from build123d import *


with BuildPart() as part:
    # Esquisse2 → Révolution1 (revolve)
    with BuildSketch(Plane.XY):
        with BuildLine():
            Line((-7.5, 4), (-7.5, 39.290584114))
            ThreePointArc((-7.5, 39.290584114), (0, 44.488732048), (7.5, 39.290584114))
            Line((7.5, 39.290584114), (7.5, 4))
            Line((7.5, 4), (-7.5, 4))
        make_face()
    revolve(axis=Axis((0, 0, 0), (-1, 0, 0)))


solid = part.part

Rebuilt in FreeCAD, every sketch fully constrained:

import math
import FreeCAD as App
import Part
import Sketcher

V = App.Vector

doc = App.newDocument("Part")
body = doc.addObject("PartDesign::Body", "Body")

# Sketch on XY plane
sketch1 = body.newObject("Sketcher::SketchObject", "Sketch")
sketch1.AttachmentSupport = (doc.getObject("XY_Plane"), [""])
sketch1.MapMode = "FlatFace"
sketch1.addGeometry(Part.LineSegment(V(-8, 39, 0), V(-8, 4, 0)), False)
sketch1.addGeometry(Part.LineSegment(V(-8, 4, 0), V(8, 4, 0)), False)
sketch1.addGeometry(Part.LineSegment(V(8, 4, 0), V(8, 39, 0)), False)
sketch1.addGeometry(Part.ArcOfCircle(Part.Circle(V(0, 36, 0), V(0, 0, 1), 8), math.radians(21), math.radians(159)), False)
sketch1.addConstraint(Sketcher.Constraint("Coincident", 0, 2, 1, 1))
sketch1.addConstraint(Sketcher.Constraint("Coincident", 1, 2, 2, 1))
sketch1.addConstraint(Sketcher.Constraint("Coincident", 2, 2, 3, 1))
sketch1.addConstraint(Sketcher.Constraint("Coincident", 3, 2, 0, 1))
sketch1.addConstraint(Sketcher.Constraint("Vertical", 0))
sketch1.addConstraint(Sketcher.Constraint("Horizontal", 1))
sketch1.addConstraint(Sketcher.Constraint("Vertical", 2))
sketch1.addConstraint(Sketcher.Constraint("Symmetric", 2, 2, 3, 2, -2))
sketch1.addConstraint(Sketcher.Constraint("DistanceX", 1, 1, 1, 2, 15.0))
sketch1.addConstraint(Sketcher.Constraint("DistanceY", -1, 1, 0, 2, 4.0))
sketch1.addConstraint(Sketcher.Constraint("Radius", 3, 8.009655))
sketch1.addConstraint(Sketcher.Constraint("DistanceY", 0, 2, 0, 1, 35.290584))
revolution = body.newObject("PartDesign::Revolution", "Revolution")
revolution.Profile = sketch1
revolution.ReferenceAxis = (sketch1, ["H_Axis"])
revolution.Angle = 360

doc.recompute()
